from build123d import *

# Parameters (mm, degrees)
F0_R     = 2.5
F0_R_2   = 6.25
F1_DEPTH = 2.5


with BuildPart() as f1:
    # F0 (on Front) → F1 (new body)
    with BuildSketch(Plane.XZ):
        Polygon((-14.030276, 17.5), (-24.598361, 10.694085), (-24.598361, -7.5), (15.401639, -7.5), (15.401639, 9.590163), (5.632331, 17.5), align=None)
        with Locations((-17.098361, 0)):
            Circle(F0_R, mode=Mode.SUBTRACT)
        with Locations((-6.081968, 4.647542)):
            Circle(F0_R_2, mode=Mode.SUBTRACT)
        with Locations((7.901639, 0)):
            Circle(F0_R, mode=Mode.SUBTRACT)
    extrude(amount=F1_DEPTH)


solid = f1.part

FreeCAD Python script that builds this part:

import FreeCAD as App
import Part
import Sketcher
from FreeCAD import Vector
Q = App.Units.Quantity

doc = App.newDocument("Part")
params = doc.addObject("Spreadsheet::Sheet", "Params")
for row, (alias, value) in enumerate([
    ("sketch1_diameter", "5 mm"),
    ("sketch1_diameter2", "12.5 mm"),
    ("sketch1_width", "40 mm"),
    ("sketch1_length", "12.57 mm"),
    ("pad1_length", "2.5 mm"),
], start=1):
    params.set(f"A{row}", alias)
    params.set(f"B{row}", "=" + value)
    params.setAlias(f"B{row}", alias)

body = doc.addObject("PartDesign::Body", "Body")

sketch1 = body.newObject("Sketcher::SketchObject", "Sketch")
sketch1.AttachmentSupport = (doc.getObject("XZ_Plane"), [""])
sketch1.MapMode = "FlatFace"
sketch1.addGeometry(Part.LineSegment(Vector(-14, 17.5, 0), Vector(-24.6, 10.7, 0)), False)
sketch1.addGeometry(Part.LineSegment(Vector(-24.6, 10.7, 0), Vector(-24.6, -7.5, 0)), False)
sketch1.addGeometry(Part.LineSegment(Vector(-24.6, -7.5, 0), Vector(15.4, -7.5, 0)), False)
sketch1.addGeometry(Part.LineSegment(Vector(15.4, -7.5, 0), Vector(15.4, 9.6, 0)), False)
sketch1.addGeometry(Part.LineSegment(Vector(15.4, 9.6, 0), Vector(5.6, 17.5, 0)), False)
sketch1.addGeometry(Part.LineSegment(Vector(5.6, 17.5, 0), Vector(-14, 17.5, 0)), False)
sketch1.addGeometry(Part.Circle(Vector(-17.1, 0, 0), Vector(0, 0, 1), 2.5), False)
sketch1.addGeometry(Part.Circle(Vector(7.9, 0, 0), Vector(0, 0, 1), 2.5), False)
sketch1.addGeometry(Part.Circle(Vector(-6.1, 4.6, 0), Vector(0, 0, 1), 6.2), False)
sketch1.addConstraint(Sketcher.Constraint("Coincident", 0, 2, 1, 1))
sketch1.addConstraint(Sketcher.Constraint("Coincident", 1, 2, 2, 1))
sketch1.addConstraint(Sketcher.Constraint("Coincident", 2, 2, 3, 1))
sketch1.addConstraint(Sketcher.Constraint("Coincident", 3, 2, 4, 1))
sketch1.addConstraint(Sketcher.Constraint("Coincident", 4, 2, 5, 1))
sketch1.addConstraint(Sketcher.Constraint("Coincident", 5, 2, 0, 1))
sketch1.addConstraint(Sketcher.Constraint("Vertical", 1))
sketch1.addConstraint(Sketcher.Constraint("Horizontal", 2))
sketch1.addConstraint(Sketcher.Constraint("Vertical", 3))
sketch1.addConstraint(Sketcher.Constraint("Horizontal", 5))
sketch1.addConstraint(Sketcher.Constraint("Equal", 6, 7))
sketch1.addConstraint(Sketcher.Constraint("PointOnObject", 6, 3, -1))
sketch1.addConstraint(Sketcher.Constraint("PointOnObject", 7, 3, -1))
sketch1.addConstraint(Sketcher.Constraint("Equal", 0, 4))
sketch1.addConstraint(Sketcher.Constraint("Diameter", 6, Q("5 mm")))
sketch1.addConstraint(Sketcher.Constraint("Diameter", 8, Q("12.5 mm")))
sketch1.addConstraint(Sketcher.Constraint("DistanceX", 2, 1, 2, 2, Q("40 mm")))
sketch1.addConstraint(Sketcher.Constraint("DistanceX", 6, 3, 7, 3, Q("25 mm")))
sketch1.addConstraint(Sketcher.Constraint("DistanceY", 2, 2, 4, 2, Q("25 mm")))
sketch1.addConstraint(Sketcher.Constraint("DistanceY", 1, 2, -1, 1, Q("7.5 mm")))
sketch1.addConstraint(Sketcher.Constraint("DistanceX", 0, 2, 6, 3, Q("7.5 mm")))
sketch1.addConstraint(Sketcher.Constraint("Distance", 0, Q("12.57 mm")))
sketch1.addConstraint(Sketcher.Constraint("DistanceX", 8, 3, 4, 2, Q("11.714299 mm")))
sketch1.addConstraint(Sketcher.Constraint("DistanceX", 5, 2, 5, 1, Q("19.662607 mm")))
sketch1.addConstraint(Sketcher.Constraint("DistanceY", 1, 2, 1, 1, Q("18.194085 mm")))
sketch1.addConstraint(Sketcher.Constraint("DistanceX", 6, 3, -1, 1, Q("17.098361 mm")))
sketch1.addConstraint(Sketcher.Constraint("DistanceY", -1, 1, 8, 3, Q("4.647542 mm")))
sketch1.setExpression("Constraints[14]", "Params.sketch1_diameter")
sketch1.setExpression("Constraints[15]", "Params.sketch1_diameter2")
sketch1.setExpression("Constraints[16]", "Params.sketch1_width")
sketch1.setExpression("Constraints[21]", "Params.sketch1_length")
pad1 = body.newObject("PartDesign::Pad", "Pad")
pad1.Profile = sketch1
pad1.setExpression("Length", "Params.pad1_length")

doc.recompute()
